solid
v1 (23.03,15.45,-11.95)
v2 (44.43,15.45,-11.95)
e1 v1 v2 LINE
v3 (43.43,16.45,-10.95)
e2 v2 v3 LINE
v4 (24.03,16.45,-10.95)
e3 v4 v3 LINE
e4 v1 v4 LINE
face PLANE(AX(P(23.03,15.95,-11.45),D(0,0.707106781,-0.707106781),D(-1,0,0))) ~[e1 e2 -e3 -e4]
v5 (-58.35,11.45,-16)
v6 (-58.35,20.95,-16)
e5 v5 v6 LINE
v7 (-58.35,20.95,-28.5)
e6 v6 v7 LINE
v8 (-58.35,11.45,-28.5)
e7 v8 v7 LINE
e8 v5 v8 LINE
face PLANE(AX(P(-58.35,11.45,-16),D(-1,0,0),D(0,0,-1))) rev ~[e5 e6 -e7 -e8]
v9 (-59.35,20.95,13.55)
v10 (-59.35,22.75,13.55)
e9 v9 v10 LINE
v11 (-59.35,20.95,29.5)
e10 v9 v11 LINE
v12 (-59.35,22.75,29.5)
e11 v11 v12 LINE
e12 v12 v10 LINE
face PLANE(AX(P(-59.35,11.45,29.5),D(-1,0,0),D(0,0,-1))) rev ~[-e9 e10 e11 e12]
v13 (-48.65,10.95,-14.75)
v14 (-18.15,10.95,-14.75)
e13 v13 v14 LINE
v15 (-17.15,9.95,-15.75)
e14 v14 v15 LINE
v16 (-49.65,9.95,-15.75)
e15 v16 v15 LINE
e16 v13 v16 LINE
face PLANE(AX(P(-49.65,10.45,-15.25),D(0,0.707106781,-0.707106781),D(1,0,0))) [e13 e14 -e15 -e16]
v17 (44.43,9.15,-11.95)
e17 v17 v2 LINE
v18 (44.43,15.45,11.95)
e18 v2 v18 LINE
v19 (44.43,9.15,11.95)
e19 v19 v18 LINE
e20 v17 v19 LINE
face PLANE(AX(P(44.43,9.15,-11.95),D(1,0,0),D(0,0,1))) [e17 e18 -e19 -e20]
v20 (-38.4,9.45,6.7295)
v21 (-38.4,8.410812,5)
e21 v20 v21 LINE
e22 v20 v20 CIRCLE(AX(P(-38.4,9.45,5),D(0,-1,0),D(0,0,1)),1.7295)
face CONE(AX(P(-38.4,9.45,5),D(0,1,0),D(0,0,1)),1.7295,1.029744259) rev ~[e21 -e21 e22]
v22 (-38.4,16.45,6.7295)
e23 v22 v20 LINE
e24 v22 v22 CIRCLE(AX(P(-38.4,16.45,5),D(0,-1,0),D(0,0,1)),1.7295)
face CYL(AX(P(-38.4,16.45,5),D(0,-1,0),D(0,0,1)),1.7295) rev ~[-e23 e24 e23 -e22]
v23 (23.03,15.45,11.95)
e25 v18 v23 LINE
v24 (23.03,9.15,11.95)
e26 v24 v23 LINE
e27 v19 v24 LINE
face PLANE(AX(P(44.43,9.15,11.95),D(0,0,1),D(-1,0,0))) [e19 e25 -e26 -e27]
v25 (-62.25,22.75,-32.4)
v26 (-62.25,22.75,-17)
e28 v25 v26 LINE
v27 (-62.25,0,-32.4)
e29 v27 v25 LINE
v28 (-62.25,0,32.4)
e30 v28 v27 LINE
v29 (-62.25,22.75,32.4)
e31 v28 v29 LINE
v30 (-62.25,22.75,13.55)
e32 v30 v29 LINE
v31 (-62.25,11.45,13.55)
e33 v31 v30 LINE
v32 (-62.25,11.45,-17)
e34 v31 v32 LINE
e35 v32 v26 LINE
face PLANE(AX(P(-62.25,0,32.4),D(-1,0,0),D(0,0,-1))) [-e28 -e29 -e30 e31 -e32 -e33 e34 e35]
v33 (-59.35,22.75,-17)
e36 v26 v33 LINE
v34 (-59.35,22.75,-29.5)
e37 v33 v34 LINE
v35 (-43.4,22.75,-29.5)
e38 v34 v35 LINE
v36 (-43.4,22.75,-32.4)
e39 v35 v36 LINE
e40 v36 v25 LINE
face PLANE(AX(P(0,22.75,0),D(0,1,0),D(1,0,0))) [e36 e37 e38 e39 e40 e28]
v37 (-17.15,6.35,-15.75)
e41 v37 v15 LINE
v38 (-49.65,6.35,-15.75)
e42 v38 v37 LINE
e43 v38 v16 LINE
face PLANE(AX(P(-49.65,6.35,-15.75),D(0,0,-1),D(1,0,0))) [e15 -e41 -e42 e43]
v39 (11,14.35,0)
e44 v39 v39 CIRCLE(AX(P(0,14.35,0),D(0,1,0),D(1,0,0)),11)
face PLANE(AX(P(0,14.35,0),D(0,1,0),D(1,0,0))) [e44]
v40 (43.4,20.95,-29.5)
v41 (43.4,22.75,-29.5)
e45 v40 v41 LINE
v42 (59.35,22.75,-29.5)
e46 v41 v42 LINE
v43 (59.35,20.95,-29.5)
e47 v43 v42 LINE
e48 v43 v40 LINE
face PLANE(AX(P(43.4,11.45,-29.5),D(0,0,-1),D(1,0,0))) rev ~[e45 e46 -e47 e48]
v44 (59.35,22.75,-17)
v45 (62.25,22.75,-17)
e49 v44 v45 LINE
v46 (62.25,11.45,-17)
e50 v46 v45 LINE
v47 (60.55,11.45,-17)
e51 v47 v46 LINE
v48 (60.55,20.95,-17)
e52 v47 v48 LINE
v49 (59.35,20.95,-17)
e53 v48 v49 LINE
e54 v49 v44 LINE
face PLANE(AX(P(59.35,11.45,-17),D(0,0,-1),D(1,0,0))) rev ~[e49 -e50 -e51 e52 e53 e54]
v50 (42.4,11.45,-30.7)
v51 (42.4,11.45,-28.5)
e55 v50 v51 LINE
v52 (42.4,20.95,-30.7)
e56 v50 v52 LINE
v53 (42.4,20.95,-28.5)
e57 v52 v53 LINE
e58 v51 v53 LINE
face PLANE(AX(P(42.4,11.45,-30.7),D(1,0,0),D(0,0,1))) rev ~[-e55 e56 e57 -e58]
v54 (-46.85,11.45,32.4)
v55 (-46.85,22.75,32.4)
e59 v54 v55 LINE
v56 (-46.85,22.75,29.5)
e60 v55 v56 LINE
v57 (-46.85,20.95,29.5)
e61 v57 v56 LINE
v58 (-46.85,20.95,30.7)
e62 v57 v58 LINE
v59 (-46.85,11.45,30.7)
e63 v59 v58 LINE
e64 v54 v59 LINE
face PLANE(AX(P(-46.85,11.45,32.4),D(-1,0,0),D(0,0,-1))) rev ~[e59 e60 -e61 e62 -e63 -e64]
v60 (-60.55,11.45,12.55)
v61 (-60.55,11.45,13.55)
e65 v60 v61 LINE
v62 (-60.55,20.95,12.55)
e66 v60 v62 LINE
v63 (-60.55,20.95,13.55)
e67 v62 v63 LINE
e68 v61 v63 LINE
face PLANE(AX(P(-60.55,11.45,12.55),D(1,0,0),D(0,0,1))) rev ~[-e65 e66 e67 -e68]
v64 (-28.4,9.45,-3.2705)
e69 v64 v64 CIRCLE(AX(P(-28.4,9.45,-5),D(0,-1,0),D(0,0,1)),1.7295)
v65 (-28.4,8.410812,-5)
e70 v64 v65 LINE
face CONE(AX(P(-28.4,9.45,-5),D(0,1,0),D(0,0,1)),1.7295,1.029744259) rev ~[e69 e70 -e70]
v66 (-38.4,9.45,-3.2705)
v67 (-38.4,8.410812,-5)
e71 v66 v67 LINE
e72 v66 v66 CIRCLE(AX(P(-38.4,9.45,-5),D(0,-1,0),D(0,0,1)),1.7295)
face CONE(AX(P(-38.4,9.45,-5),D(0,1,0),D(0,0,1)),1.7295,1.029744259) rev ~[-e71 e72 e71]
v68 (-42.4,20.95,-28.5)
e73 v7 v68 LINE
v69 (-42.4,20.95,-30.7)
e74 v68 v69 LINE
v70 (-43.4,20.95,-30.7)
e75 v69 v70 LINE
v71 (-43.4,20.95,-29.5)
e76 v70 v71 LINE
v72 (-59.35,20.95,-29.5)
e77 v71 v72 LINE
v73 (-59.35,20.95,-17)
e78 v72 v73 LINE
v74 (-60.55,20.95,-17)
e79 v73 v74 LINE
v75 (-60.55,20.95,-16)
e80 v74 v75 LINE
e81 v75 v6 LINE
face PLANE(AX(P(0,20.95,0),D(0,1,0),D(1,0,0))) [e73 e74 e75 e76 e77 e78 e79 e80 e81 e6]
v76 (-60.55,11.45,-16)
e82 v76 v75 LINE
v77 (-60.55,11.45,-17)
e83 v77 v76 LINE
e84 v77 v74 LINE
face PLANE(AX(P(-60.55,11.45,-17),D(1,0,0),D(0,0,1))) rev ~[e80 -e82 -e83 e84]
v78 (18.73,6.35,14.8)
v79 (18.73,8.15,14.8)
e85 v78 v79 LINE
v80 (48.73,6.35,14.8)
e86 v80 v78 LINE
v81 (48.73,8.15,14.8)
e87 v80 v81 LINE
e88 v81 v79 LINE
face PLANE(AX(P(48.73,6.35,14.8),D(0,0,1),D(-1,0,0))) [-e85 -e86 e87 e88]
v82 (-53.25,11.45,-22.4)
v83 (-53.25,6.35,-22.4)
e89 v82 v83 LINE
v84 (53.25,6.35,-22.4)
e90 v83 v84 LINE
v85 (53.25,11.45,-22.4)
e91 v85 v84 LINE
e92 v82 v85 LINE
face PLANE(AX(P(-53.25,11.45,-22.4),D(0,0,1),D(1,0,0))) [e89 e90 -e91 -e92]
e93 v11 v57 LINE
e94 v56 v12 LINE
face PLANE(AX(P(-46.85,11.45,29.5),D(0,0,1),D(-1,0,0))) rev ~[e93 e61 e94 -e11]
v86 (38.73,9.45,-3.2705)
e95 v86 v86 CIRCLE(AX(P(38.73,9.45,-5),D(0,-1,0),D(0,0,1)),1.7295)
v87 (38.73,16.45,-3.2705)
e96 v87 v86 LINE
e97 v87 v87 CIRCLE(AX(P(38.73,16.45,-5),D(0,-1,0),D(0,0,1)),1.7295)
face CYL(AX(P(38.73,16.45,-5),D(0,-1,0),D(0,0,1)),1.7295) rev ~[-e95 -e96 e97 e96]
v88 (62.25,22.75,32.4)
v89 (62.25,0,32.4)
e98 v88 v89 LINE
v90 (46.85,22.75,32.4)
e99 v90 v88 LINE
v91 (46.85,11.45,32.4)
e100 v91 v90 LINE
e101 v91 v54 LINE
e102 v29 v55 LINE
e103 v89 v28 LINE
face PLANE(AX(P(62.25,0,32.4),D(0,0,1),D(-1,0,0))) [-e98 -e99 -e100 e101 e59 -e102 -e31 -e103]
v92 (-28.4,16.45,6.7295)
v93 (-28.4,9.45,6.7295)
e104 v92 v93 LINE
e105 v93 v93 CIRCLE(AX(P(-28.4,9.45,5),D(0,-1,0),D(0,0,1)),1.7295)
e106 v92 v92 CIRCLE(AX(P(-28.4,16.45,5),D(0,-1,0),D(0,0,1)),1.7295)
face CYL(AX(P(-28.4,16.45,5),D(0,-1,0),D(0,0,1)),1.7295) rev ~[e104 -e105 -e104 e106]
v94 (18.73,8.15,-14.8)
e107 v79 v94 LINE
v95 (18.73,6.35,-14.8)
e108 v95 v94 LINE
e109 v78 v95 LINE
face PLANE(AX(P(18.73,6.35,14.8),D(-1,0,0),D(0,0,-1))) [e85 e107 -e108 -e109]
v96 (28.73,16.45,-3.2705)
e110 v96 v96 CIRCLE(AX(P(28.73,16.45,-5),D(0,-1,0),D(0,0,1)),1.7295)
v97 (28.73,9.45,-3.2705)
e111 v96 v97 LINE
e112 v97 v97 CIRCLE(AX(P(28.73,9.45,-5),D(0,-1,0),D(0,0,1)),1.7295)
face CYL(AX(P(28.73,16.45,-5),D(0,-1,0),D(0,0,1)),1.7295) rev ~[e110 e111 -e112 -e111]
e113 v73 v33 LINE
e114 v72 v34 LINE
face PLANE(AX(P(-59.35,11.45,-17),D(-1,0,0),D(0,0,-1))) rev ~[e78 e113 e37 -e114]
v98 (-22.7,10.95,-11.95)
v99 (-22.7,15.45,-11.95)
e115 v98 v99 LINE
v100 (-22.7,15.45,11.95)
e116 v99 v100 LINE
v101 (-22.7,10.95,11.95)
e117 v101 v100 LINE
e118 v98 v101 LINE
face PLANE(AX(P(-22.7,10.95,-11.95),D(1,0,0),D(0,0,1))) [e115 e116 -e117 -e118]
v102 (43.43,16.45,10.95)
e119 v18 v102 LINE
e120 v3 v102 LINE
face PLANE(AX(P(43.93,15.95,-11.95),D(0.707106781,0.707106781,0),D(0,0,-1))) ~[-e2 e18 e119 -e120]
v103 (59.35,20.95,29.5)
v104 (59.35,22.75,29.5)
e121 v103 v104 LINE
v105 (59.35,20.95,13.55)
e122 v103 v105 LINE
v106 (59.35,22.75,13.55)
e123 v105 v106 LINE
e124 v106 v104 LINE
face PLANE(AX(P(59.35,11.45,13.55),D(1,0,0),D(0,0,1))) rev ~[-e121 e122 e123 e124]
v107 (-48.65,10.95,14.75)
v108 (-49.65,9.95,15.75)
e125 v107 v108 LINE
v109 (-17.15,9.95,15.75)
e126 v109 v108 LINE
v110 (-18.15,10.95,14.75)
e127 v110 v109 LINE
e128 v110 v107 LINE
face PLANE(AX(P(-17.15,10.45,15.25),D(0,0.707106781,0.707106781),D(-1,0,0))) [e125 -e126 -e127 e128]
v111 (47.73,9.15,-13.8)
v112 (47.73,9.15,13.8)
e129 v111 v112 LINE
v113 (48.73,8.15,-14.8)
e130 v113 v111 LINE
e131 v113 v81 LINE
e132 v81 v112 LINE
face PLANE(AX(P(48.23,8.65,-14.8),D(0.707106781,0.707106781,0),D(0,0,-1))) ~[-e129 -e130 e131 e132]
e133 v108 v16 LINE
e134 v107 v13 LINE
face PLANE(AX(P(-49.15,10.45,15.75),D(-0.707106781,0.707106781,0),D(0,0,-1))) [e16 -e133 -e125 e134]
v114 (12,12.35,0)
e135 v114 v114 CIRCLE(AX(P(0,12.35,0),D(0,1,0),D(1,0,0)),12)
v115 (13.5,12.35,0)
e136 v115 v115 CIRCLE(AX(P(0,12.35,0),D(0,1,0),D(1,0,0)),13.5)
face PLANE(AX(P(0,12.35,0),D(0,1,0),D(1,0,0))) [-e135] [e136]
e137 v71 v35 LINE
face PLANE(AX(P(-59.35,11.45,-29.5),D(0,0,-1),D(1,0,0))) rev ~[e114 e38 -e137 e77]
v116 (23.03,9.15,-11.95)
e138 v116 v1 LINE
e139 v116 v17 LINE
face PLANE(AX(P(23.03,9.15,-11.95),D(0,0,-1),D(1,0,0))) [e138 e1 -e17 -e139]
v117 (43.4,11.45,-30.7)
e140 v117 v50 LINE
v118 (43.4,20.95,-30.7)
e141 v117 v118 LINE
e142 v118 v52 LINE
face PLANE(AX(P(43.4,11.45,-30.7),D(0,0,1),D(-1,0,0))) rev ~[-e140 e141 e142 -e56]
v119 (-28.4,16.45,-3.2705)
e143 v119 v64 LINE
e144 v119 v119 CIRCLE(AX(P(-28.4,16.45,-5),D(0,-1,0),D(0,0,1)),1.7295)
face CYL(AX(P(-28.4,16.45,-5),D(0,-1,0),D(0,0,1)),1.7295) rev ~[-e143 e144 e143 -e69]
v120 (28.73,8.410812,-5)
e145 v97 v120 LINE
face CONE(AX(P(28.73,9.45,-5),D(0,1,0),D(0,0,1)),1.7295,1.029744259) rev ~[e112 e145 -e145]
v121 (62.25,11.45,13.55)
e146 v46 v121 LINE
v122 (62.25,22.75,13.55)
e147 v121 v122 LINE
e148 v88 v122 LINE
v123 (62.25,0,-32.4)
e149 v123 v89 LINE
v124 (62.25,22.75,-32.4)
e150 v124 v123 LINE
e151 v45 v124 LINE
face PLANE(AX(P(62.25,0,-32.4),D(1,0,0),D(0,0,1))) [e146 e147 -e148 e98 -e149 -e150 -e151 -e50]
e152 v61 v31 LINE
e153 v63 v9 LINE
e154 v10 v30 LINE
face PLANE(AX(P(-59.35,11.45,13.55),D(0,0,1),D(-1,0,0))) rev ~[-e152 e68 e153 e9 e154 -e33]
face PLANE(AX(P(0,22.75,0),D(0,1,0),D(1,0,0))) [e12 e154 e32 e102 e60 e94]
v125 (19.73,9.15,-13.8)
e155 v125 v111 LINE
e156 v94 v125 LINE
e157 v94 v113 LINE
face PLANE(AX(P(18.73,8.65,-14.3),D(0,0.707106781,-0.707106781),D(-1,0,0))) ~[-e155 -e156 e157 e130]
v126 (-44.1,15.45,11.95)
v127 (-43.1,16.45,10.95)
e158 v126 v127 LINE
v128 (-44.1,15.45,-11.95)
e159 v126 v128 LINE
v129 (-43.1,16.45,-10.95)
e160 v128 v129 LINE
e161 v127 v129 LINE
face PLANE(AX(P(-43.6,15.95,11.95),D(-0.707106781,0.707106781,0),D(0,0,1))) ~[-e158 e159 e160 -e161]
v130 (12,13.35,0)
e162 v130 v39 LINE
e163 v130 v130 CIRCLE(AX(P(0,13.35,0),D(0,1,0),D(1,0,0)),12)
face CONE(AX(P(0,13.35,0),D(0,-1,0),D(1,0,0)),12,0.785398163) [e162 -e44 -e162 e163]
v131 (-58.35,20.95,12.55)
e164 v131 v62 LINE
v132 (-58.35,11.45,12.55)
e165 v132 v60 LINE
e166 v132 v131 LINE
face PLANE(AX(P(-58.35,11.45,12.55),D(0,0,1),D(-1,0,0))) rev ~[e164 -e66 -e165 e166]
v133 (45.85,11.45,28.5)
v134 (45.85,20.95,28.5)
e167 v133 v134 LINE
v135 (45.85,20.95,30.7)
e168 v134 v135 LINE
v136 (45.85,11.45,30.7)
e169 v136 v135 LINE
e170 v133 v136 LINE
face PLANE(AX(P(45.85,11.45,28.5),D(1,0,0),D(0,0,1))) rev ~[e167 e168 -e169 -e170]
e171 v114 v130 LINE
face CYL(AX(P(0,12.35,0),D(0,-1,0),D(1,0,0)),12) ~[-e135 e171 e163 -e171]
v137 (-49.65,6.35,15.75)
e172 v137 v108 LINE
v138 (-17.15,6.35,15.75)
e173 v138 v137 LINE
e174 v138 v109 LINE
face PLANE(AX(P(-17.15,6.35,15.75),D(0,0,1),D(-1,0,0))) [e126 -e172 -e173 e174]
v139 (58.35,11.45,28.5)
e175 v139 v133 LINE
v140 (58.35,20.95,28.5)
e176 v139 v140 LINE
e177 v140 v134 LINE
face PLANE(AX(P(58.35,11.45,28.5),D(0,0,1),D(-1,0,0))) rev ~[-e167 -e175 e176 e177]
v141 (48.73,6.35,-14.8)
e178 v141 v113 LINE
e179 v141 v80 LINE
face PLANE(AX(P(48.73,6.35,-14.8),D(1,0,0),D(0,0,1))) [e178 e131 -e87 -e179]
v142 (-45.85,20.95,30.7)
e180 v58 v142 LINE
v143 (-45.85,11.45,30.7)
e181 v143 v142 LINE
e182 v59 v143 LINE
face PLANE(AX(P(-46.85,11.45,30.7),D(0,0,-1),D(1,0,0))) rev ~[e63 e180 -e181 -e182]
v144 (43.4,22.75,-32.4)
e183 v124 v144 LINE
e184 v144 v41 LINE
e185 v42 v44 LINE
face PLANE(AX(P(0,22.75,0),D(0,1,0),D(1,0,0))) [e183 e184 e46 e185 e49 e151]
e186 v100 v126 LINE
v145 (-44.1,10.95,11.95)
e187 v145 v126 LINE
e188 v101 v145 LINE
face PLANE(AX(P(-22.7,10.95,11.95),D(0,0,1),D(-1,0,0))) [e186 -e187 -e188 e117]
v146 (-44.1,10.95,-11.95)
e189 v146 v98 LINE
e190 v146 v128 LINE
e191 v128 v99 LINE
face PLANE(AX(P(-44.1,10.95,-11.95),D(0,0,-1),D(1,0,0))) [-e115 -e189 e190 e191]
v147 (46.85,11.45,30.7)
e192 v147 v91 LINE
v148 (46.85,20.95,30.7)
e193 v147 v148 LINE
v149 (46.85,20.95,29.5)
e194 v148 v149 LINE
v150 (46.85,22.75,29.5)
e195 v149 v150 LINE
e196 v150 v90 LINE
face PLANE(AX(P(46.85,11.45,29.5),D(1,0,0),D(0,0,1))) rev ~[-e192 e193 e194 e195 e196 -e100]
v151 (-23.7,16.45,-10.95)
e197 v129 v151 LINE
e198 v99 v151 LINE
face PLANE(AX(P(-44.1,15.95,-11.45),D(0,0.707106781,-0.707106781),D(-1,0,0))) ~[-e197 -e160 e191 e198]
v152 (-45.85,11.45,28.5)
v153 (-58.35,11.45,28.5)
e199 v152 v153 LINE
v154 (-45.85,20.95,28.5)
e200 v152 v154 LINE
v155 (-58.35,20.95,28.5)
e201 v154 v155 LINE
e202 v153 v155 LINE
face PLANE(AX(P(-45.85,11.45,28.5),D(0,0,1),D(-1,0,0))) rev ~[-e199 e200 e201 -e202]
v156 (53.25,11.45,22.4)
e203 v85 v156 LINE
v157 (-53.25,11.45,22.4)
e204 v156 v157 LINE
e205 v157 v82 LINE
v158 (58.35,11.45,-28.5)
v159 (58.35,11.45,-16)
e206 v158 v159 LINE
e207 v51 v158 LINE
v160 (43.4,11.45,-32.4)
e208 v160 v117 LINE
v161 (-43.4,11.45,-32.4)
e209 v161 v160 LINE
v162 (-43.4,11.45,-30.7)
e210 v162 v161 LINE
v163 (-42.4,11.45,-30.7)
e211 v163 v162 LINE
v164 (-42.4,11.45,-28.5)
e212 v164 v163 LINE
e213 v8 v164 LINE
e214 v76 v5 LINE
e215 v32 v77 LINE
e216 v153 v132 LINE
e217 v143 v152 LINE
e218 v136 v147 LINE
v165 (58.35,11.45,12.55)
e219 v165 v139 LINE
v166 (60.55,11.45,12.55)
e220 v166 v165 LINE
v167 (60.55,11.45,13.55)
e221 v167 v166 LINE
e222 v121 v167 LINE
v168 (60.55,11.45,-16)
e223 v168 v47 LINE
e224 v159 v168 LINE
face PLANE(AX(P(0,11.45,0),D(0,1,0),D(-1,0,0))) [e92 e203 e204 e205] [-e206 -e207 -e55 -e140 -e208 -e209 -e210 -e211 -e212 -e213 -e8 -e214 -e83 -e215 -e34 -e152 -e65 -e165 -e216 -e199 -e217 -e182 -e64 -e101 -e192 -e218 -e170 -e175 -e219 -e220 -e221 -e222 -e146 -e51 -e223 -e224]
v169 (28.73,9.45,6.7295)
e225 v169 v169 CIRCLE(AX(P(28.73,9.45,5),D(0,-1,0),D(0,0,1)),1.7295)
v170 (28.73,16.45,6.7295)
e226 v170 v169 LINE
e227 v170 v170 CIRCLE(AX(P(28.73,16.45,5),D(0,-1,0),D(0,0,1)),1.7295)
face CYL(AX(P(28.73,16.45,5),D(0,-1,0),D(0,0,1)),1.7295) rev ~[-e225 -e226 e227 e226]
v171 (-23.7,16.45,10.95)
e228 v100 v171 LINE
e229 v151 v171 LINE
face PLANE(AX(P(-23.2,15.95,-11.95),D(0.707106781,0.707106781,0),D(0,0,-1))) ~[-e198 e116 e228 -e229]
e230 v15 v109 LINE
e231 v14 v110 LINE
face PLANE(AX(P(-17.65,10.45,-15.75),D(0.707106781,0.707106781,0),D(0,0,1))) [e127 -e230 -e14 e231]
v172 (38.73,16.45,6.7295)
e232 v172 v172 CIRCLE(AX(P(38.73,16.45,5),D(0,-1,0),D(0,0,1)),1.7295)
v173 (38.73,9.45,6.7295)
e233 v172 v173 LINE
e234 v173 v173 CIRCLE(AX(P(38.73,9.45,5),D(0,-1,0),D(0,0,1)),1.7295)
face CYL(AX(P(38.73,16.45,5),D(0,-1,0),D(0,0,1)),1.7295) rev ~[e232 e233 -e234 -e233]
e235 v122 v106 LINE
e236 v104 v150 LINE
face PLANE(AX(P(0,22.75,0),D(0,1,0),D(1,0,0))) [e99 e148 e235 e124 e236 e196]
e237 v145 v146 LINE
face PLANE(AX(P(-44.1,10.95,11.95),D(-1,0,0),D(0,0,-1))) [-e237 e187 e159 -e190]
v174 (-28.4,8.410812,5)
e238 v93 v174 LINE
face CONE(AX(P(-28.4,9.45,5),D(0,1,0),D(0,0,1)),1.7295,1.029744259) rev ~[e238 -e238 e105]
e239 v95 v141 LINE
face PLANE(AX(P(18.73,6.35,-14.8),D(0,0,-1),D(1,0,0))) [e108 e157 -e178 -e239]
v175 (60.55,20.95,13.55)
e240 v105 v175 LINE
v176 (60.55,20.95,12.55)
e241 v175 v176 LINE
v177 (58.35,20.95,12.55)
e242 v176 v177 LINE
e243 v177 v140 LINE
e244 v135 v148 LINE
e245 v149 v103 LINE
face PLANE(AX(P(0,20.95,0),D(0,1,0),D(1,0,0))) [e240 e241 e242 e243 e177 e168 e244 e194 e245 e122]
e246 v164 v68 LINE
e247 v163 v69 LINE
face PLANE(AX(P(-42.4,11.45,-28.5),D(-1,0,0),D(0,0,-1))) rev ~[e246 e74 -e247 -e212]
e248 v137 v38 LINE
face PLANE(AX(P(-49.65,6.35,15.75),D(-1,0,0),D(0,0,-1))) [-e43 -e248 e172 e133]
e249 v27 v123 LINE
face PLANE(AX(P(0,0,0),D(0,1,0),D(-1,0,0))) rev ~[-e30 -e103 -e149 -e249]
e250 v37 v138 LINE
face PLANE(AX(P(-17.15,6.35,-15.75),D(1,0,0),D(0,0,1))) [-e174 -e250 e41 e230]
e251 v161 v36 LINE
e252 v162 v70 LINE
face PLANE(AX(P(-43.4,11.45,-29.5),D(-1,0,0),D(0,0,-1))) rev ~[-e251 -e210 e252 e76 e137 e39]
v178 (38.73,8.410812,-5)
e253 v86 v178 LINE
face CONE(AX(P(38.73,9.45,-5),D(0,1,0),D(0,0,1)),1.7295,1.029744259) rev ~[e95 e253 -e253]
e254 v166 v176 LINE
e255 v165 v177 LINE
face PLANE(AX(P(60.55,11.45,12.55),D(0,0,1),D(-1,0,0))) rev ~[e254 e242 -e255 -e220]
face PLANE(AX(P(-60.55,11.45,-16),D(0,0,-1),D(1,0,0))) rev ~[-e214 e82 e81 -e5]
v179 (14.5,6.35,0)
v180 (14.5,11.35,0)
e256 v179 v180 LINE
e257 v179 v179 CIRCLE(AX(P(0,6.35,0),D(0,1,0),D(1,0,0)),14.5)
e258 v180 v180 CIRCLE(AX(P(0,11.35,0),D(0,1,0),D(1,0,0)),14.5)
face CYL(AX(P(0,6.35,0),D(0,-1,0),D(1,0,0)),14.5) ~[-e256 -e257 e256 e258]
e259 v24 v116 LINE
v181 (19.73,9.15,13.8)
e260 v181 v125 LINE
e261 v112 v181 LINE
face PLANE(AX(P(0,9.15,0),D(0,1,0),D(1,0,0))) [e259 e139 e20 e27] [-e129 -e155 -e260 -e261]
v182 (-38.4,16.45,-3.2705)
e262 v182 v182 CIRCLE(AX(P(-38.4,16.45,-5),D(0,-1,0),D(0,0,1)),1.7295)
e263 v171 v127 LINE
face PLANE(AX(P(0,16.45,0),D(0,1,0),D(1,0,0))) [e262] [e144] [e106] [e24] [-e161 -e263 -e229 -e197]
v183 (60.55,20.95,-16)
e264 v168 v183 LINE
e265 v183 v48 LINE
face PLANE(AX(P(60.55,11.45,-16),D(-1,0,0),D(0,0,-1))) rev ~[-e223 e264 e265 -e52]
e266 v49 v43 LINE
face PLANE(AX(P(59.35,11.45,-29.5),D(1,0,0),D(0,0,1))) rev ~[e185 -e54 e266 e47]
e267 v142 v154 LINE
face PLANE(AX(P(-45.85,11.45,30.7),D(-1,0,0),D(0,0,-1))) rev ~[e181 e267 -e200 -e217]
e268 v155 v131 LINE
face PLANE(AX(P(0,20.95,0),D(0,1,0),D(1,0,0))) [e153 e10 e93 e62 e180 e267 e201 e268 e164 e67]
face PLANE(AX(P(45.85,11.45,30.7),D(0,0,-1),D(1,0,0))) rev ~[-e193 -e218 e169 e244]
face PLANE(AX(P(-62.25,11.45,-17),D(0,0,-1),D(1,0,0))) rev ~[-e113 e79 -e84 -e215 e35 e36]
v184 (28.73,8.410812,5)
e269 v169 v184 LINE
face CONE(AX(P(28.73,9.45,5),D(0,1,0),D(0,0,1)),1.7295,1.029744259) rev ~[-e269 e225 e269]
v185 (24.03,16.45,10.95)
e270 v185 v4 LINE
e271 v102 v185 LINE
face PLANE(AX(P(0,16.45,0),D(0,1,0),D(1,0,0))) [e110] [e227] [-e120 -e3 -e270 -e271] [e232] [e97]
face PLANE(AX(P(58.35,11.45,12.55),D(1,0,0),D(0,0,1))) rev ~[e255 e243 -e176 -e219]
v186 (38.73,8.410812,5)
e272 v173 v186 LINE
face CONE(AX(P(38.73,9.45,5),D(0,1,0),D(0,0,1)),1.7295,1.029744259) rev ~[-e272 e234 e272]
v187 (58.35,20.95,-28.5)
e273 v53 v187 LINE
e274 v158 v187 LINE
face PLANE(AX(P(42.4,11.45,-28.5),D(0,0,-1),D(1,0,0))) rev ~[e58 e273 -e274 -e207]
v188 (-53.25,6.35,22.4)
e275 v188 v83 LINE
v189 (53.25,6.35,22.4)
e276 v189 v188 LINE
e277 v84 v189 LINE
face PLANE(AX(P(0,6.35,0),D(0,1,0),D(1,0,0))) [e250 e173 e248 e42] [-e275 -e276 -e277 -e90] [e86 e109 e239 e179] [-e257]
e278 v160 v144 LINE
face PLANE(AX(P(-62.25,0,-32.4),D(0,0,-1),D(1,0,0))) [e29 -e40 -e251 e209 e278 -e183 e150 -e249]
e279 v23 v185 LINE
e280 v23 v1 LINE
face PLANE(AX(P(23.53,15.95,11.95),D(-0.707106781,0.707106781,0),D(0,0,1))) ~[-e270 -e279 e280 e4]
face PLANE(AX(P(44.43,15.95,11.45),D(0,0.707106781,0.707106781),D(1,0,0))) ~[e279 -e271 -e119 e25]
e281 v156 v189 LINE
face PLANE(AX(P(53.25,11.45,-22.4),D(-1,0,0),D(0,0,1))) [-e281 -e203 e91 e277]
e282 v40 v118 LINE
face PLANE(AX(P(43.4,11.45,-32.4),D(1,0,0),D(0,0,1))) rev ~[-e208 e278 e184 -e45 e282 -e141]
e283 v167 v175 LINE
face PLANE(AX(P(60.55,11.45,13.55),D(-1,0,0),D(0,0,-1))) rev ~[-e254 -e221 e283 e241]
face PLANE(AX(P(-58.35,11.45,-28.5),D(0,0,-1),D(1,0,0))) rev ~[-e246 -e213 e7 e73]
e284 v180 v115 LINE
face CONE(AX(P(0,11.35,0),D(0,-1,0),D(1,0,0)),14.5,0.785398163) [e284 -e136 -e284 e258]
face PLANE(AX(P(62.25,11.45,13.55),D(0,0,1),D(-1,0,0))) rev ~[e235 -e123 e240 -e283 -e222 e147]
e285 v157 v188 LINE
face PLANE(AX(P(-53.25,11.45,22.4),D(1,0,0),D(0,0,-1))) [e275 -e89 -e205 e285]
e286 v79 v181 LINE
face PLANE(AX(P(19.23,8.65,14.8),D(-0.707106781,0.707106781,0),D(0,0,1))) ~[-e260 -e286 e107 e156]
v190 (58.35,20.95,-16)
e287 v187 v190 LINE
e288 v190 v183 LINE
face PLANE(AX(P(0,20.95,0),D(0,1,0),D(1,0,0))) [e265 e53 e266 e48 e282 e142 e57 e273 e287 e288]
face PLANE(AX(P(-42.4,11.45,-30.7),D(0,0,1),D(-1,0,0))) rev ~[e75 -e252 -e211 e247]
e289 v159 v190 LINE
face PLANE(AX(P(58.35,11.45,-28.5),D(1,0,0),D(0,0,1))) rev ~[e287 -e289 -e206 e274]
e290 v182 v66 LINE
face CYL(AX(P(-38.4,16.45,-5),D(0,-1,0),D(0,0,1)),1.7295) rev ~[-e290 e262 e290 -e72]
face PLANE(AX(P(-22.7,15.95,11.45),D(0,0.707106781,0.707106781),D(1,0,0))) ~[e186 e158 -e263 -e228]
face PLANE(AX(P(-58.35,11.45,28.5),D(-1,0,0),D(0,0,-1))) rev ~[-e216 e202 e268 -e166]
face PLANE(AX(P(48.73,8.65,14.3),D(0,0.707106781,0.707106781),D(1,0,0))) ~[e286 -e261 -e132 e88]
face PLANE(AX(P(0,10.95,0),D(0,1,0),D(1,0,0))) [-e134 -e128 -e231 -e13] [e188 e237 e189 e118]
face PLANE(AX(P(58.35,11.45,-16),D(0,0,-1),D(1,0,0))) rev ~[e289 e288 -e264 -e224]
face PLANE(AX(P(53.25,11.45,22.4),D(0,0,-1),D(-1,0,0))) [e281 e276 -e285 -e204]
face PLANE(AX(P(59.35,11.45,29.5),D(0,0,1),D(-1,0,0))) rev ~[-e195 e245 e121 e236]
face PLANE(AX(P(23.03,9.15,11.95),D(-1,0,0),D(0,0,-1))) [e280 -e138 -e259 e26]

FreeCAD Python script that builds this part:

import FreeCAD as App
import Part
import Sketcher
from FreeCAD import Vector


def edges_at(feature, points):
    """Names of the edges that pass closest to the given points."""
    edges = feature.Shape.Edges
    near = lambda p: min(range(len(edges)), key=lambda i: edges[i].distToShape(Part.Vertex(*p))[0])
    return sorted({f"Edge{near(p) + 1}" for p in points})


def add_polygon(sketch, points):
    """Adds a closed chain of lines whose ends are joined by coincident constraints."""
    first, n = sketch.GeometryCount, len(points)
    for a, b in zip(points, points[1:] + points[:1]):
        sketch.addGeometry(Part.LineSegment(App.Vector(*a, 0), App.Vector(*b, 0)), False)
    for i in range(n):
        sketch.addConstraint(Sketcher.Constraint("Coincident", first + i, 2, first + (i + 1) % n, 1))

doc = App.newDocument("Part")
params = doc.addObject("Spreadsheet::Sheet", "Params")
for row, (alias, value) in enumerate([
    ("sketch1_width", "124.5 mm"),
    ("sketch1_height", "64.8 mm"),
    ("pad1_length", "11.45 mm"),
    ("sketch2_width", "2.9 mm"),
    ("sketch2_width2", "15.4 mm"),
    ("sketch2_width3", "18.85 mm"),
    ("pad2_length", "11.3 mm"),
    ("sketch3_width", "106.5 mm"),
    ("sketch3_height", "44.8 mm"),
    ("pocket1_length", "5.1 mm"),
    ("sketch4_width", "32.5 mm"),
    ("sketch4_height", "31.5 mm"),
    ("pad3_length", "4.6 mm"),
    ("sketch5_width", "21.4 mm"),
    ("sketch5_height", "23.9 mm"),
    ("pad4_length", "5.5 mm"),
    ("sketch6_width", "30 mm"),
    ("sketch6_height", "29.6 mm"),
    ("pad5_length", "2.8 mm"),
    ("sketch7_width", "21.4 mm"),
    ("sketch7_height", "23.9 mm"),
    ("pad6_length", "7.3 mm"),
    ("sketch8_width", "1 mm"),
    ("sketch8_width2", "2.2 mm"),
    ("sketch8_width3", "12.5 mm"),
    ("sketch8_width4", "15.95 mm"),
    ("pad7_length", "9.5 mm"),
    ("sketch9_diameter", "29 mm"),
    ("pad8_length", "6 mm"),
    ("sketch10_diameter", "24 mm"),
    ("pad9_length", "2 mm"),
    ("chamfer_size", "1 mm"),
    ("chamfer2_size", "1 mm"),
    ("chamfer3_size", "1 mm"),
    ("chamfer4_size", "1 mm"),
    ("hole_diameter", "3.459 mm"),
    ("hole_depth", "7 mm"),
    ("hole2_diameter", "3.459 mm"),
    ("hole2_depth", "7 mm"),
    ("chamfer5_size", "1 mm"),
], start=1):
    params.set(f"A{row}", alias)
    params.set(f"B{row}", "=" + value)
    params.setAlias(f"B{row}", alias)

body = doc.addObject("PartDesign::Body", "Body")

sketch1 = body.newObject("Sketcher::SketchObject", "Sketch")
sketch1.AttachmentSupport = (doc.getObject("XZ_Plane"), [""])
sketch1.MapMode = "FlatFace"
add_polygon(sketch1, [(62, -32), (-62, -32), (-62, 32), (62, 32)])
sketch1.addConstraint(Sketcher.Constraint("Horizontal", 0))
sketch1.addConstraint(Sketcher.Constraint("Vertical", 1))
sketch1.addConstraint(Sketcher.Constraint("Horizontal", 2))
sketch1.addConstraint(Sketcher.Constraint("Vertical", 3))
sketch1.addConstraint(Sketcher.Constraint("Symmetric", 0, 2, 2, 2, -1, 1))
sketch1.addConstraint(Sketcher.Constraint("DistanceX", 0, 2, 0, 1, 124.5))
sketch1.addConstraint(Sketcher.Constraint("DistanceY", 1, 1, 1, 2, 64.8))
sketch1.setExpression("Constraints[9]", "Params.sketch1_width")
sketch1.setExpression("Constraints[10]", "Params.sketch1_height")
pad1 = body.newObject("PartDesign::Pad", "Pad")
pad1.Profile = sketch1
pad1.setExpression("Length", "Params.pad1_length")
pad1.Reversed = True

sketch2 = body.newObject("Sketcher::SketchObject", "Sketch001")
sketch2.AttachmentSupport = (doc.getObject("XZ_Plane"), [""])
sketch2.MapMode = "FlatFace"
sketch2.AttachmentOffset = App.Placement(Vector(0, 0, -11.45), App.Rotation())
add_polygon(sketch2, [(62.2, -17), (62.2, -32.4), (43.4, -32.4), (43.4, -29.5), (59.4, -29.5), (59.4, -17)])
add_polygon(sketch2, [(-43.4, -29.5), (-43.4, -32.4), (-62.2, -32.4), (-62.2, -17), (-59.4, -17), (-59.4, -29.5)])
add_polygon(sketch2, [(62.2, 32.4), (62.2, 13.6), (59.4, 13.6), (59.4, 29.5), (46.9, 29.5), (46.9, 32.4)])
add_polygon(sketch2, [(-59.4, 13.6), (-62.2, 13.6), (-62.2, 32.4), (-46.9, 32.4), (-46.9, 29.5), (-59.4, 29.5)])
sketch2.addConstraint(Sketcher.Constraint("Vertical", 0))
sketch2.addConstraint(Sketcher.Constraint("Horizontal", 1))
sketch2.addConstraint(Sketcher.Constraint("Vertical", 2))
sketch2.addConstraint(Sketcher.Constraint("Horizontal", 3))
sketch2.addConstraint(Sketcher.Constraint("Vertical", 4))
sketch2.addConstraint(Sketcher.Constraint("Horizontal", 5))
sketch2.addConstraint(Sketcher.Constraint("Vertical", 6))
sketch2.addConstraint(Sketcher.Constraint("Horizontal", 7))
sketch2.addConstraint(Sketcher.Constraint("Vertical", 8))
sketch2.addConstraint(Sketcher.Constraint("Horizontal", 9))
sketch2.addConstraint(Sketcher.Constraint("Vertical", 10))
sketch2.addConstraint(Sketcher.Constraint("Horizontal", 11))
sketch2.addConstraint(Sketcher.Constraint("Vertical", 12))
sketch2.addConstraint(Sketcher.Constraint("Horizontal", 13))
sketch2.addConstraint(Sketcher.Constraint("Vertical", 14))
sketch2.addConstraint(Sketcher.Constraint("Horizontal", 15))
sketch2.addConstraint(Sketcher.Constraint("Vertical", 16))
sketch2.addConstraint(Sketcher.Constraint("Horizontal", 17))
sketch2.addConstraint(Sketcher.Constraint("Horizontal", 18))
sketch2.addConstraint(Sketcher.Constraint("Vertical", 19))
sketch2.addConstraint(Sketcher.Constraint("Horizontal", 20))
sketch2.addConstraint(Sketcher.Constraint("Vertical", 21))
sketch2.addConstraint(Sketcher.Constraint("Horizontal", 22))
sketch2.addConstraint(Sketcher.Constraint("Vertical", 23))
sketch2.addConstraint(Sketcher.Constraint("Symmetric", 10, 2, 14, 2, -1, 1))
sketch2.addConstraint(Sketcher.Constraint("Symmetric", 7, 2, 17, 2, -1, 1))
sketch2.addConstraint(Sketcher.Constraint("Symmetric", 0, 2, 19, 2, -1, 1))
sketch2.addConstraint(Sketcher.Constraint("Symmetric", 3, 2, 22, 2, -1, 1))
sketch2.addConstraint(Sketcher.Constraint("Symmetric", 1, 2, 6, 2, -2))
sketch2.addConstraint(Sketcher.Constraint("Symmetric", 5, 2, 8, 2, -2))
sketch2.addConstraint(Sketcher.Constraint("Symmetric", 3, 2, 10, 2, -2))
sketch2.addConstraint(Sketcher.Constraint("Horizontal", 13, 2, 18, 2))
sketch2.addConstraint(Sketcher.Constraint("Equal", 17, 20))
sketch2.addConstraint(Sketcher.Constraint("Equal", 20, 0))
sketch2.addConstraint(Sketcher.Constraint("Equal", 18, 2))
sketch2.addConstraint(Sketcher.Constraint("Equal", 7, 12))
sketch2.addConstraint(Sketcher.Constraint("DistanceX", 5, 1, 5, 2, 2.9))
sketch2.addConstraint(Sketcher.Constraint("DistanceX", 17, 1, 17, 2, 15.4))
sketch2.addConstraint(Sketcher.Constraint("DistanceX", 1, 2, 1, 1, 18.85))
sketch2.addConstraint(Sketcher.Constraint("DistanceY", 4, 2, -1, 1, 17.0))
sketch2.addConstraint(Sketcher.Constraint("DistanceX", -1, 1, 1, 2, 43.4))
sketch2.setExpression("Constraints[60]", "Params.sketch2_width")
sketch2.setExpression("Constraints[61]", "Params.sketch2_width2")
sketch2.setExpression("Constraints[62]", "Params.sketch2_width3")
pad2 = body.newObject("PartDesign::Pad", "Pad001")
pad2.Profile = sketch2
pad2.setExpression("Length", "Params.pad2_length")
pad2.Reversed = True

sketch3 = body.newObject("Sketcher::SketchObject", "Sketch002")
sketch3.AttachmentSupport = (doc.getObject("XZ_Plane"), [""])
sketch3.MapMode = "FlatFace"
sketch3.AttachmentOffset = App.Placement(Vector(0, 0, -11.45), App.Rotation())
add_polygon(sketch3, [(53, -22), (-53, -22), (-53, 22), (53, 22)])
sketch3.addConstraint(Sketcher.Constraint("Horizontal", 0))
sketch3.addConstraint(Sketcher.Constraint("Vertical", 1))
sketch3.addConstraint(Sketcher.Constraint("Horizontal", 2))
sketch3.addConstraint(Sketcher.Constraint("Vertical", 3))
sketch3.addConstraint(Sketcher.Constraint("Symmetric", 0, 2, 2, 2, -1, 1))
sketch3.addConstraint(Sketcher.Constraint("DistanceX", 0, 2, 0, 1, 106.5))
sketch3.addConstraint(Sketcher.Constraint("DistanceY", 1, 1, 1, 2, 44.8))
sketch3.setExpression("Constraints[9]", "Params.sketch3_width")
sketch3.setExpression("Constraints[10]", "Params.sketch3_height")
pocket1 = body.newObject("PartDesign::Pocket", "Pocket")
pocket1.Profile = sketch3
pocket1.setExpression("Length", "Params.pocket1_length")
pocket1.Reversed = True

sketch4 = body.newObject("Sketcher::SketchObject", "Sketch003")
sketch4.AttachmentSupport = (doc.getObject("XZ_Plane"), [""])
sketch4.MapMode = "FlatFace"
sketch4.AttachmentOffset = App.Placement(Vector(0, 0, -6.35), App.Rotation())
add_polygon(sketch4, [(-17, -16), (-50, -16), (-50, 16), (-17, 16)])
sketch4.addConstraint(Sketcher.Constraint("Horizontal", 0))
sketch4.addConstraint(Sketcher.Constraint("Vertical", 1))
sketch4.addConstraint(Sketcher.Constraint("Horizontal", 2))
sketch4.addConstraint(Sketcher.Constraint("Vertical", 3))
sketch4.addConstraint(Sketcher.Constraint("DistanceX", 0, 2, 0, 1, 32.5))
sketch4.addConstraint(Sketcher.Constraint("DistanceY", 1, 1, 1, 2, 31.5))
sketch4.addConstraint(Sketcher.Constraint("DistanceX", 0, 2, -1, 1, 49.65))
sketch4.addConstraint(Sketcher.Constraint("DistanceY", 0, 2, -1, 1, 15.75))
sketch4.setExpression("Constraints[8]", "Params.sketch4_width")
sketch4.setExpression("Constraints[9]", "Params.sketch4_height")
pad3 = body.newObject("PartDesign::Pad", "Pad002")
pad3.Profile = sketch4
pad3.setExpression("Length", "Params.pad3_length")
pad3.Reversed = True

sketch5 = body.newObject("Sketcher::SketchObject", "Sketch004")
sketch5.AttachmentSupport = (doc.getObject("XZ_Plane"), [""])
sketch5.MapMode = "FlatFace"
sketch5.AttachmentOffset = App.Placement(Vector(0, 0, -10.95), App.Rotation())
add_polygon(sketch5, [(-23, -12), (-44, -12), (-44, 12), (-23, 12)])
sketch5.addConstraint(Sketcher.Constraint("Horizontal", 0))
sketch5.addConstraint(Sketcher.Constraint("Vertical", 1))
sketch5.addConstraint(Sketcher.Constraint("Horizontal", 2))
sketch5.addConstraint(Sketcher.Constraint("Vertical", 3))
sketch5.addConstraint(Sketcher.Constraint("DistanceX", 0, 2, 0, 1, 21.4))
sketch5.addConstraint(Sketcher.Constraint("DistanceY", 1, 1, 1, 2, 23.9))
sketch5.addConstraint(Sketcher.Constraint("DistanceX", 0, 2, -1, 1, 44.1))
sketch5.addConstraint(Sketcher.Constraint("DistanceY", 0, 2, -1, 1, 11.95))
sketch5.setExpression("Constraints[8]", "Params.sketch5_width")
sketch5.setExpression("Constraints[9]", "Params.sketch5_height")
pad4 = body.newObject("PartDesign::Pad", "Pad003")
pad4.Profile = sketch5
pad4.setExpression("Length", "Params.pad4_length")
pad4.Reversed = True

sketch6 = body.newObject("Sketcher::SketchObject", "Sketch005")
sketch6.AttachmentSupport = (doc.getObject("XZ_Plane"), [""])
sketch6.MapMode = "FlatFace"
sketch6.AttachmentOffset = App.Placement(Vector(0, 0, -6.35), App.Rotation())
add_polygon(sketch6, [(49, -15), (19, -15), (19, 15), (49, 15)])
sketch6.addConstraint(Sketcher.Constraint("Horizontal", 0))
sketch6.addConstraint(Sketcher.Constraint("Vertical", 1))
sketch6.addConstraint(Sketcher.Constraint("Horizontal", 2))
sketch6.addConstraint(Sketcher.Constraint("Vertical", 3))
sketch6.addConstraint(Sketcher.Constraint("DistanceX", 0, 2, 0, 1, 30.0))
sketch6.addConstraint(Sketcher.Constraint("DistanceY", 1, 1, 1, 2, 29.6))
sketch6.addConstraint(Sketcher.Constraint("DistanceY", 0, 2, -1, 1, 14.8))
sketch6.addConstraint(Sketcher.Constraint("DistanceX", -1, 1, 0, 2, 18.73))
sketch6.setExpression("Constraints[8]", "Params.sketch6_width")
sketch6.setExpression("Constraints[9]", "Params.sketch6_height")
pad5 = body.newObject("PartDesign::Pad", "Pad004")
pad5.Profile = sketch6
pad5.setExpression("Length", "Params.pad5_length")
pad5.Reversed = True

sketch7 = body.newObject("Sketcher::SketchObject", "Sketch006")
sketch7.AttachmentSupport = (doc.getObject("XZ_Plane"), [""])
sketch7.MapMode = "FlatFace"
sketch7.AttachmentOffset = App.Placement(Vector(0, 0, -9.15), App.Rotation())
add_polygon(sketch7, [(44, -12), (23, -12), (23, 12), (44, 12)])
sketch7.addConstraint(Sketcher.Constraint("Horizontal", 0))
sketch7.addConstraint(Sketcher.Constraint("Vertical", 1))
sketch7.addConstraint(Sketcher.Constraint("Horizontal", 2))
sketch7.addConstraint(Sketcher.Constraint("Vertical", 3))
sketch7.addConstraint(Sketcher.Constraint("DistanceX", 0, 2, 0, 1, 21.4))
sketch7.addConstraint(Sketcher.Constraint("DistanceY", 1, 1, 1, 2, 23.9))
sketch7.addConstraint(Sketcher.Constraint("DistanceX", -1, 1, 0, 2, 23.03))
sketch7.addConstraint(Sketcher.Constraint("DistanceY", 0, 2, -1, 1, 11.95))
sketch7.setExpression("Constraints[8]", "Params.sketch7_width")
sketch7.setExpression("Constraints[9]", "Params.sketch7_height")
pad6 = body.newObject("PartDesign::Pad", "Pad005")
pad6.Profile = sketch7
pad6.setExpression("Length", "Params.pad6_length")
pad6.Reversed = True

sketch8 = body.newObject("Sketcher::SketchObject", "Sketch007")
sketch8.AttachmentSupport = (doc.getObject("XZ_Plane"), [""])
sketch8.MapMode = "FlatFace"
sketch8.AttachmentOffset = App.Placement(Vector(0, 0, -11.45), App.Rotation())
add_polygon(sketch8, [(60.5, -16), (60.5, -17), (59.4, -17), (59.4, -29.5), (43.4, -29.5), (43.4, -30.7), (42.4, -30.7), (42.4, -28.5), (58.4, -28.5), (58.4, -16)])
add_polygon(sketch8, [(59.4, 13.6), (60.5, 13.6), (60.5, 12.6), (58.4, 12.6), (58.4, 28.5), (45.9, 28.5), (45.9, 30.7), (46.9, 30.7), (46.9, 29.5), (59.4, 29.5)])
add_polygon(sketch8, [(-58.4, 12.6), (-60.5, 12.6), (-60.5, 13.6), (-59.4, 13.6), (-59.4, 29.5), (-46.9, 29.5), (-46.9, 30.7), (-45.9, 30.7), (-45.9, 28.5), (-58.4, 28.5)])
add_polygon(sketch8, [(-60.5, -17), (-60.5, -16), (-58.4, -16), (-58.4, -28.5), (-42.4, -28.5), (-42.4, -30.7), (-43.4, -30.7), (-43.4, -29.5), (-59.4, -29.5), (-59.4, -17)])
sketch8.addConstraint(Sketcher.Constraint("Vertical", 0))
sketch8.addConstraint(Sketcher.Constraint("Horizontal", 1))
sketch8.addConstraint(Sketcher.Constraint("Vertical", 2))
sketch8.addConstraint(Sketcher.Constraint("Horizontal", 3))
sketch8.addConstraint(Sketcher.Constraint("Vertical", 4))
sketch8.addConstraint(Sketcher.Constraint("Horizontal", 5))
sketch8.addConstraint(Sketcher.Constraint("Vertical", 6))
sketch8.addConstraint(Sketcher.Constraint("Horizontal", 7))
sketch8.addConstraint(Sketcher.Constraint("Vertical", 8))
sketch8.addConstraint(Sketcher.Constraint("Horizontal", 9))
sketch8.addConstraint(Sketcher.Constraint("Horizontal", 10))
sketch8.addConstraint(Sketcher.Constraint("Vertical", 11))
sketch8.addConstraint(Sketcher.Constraint("Horizontal", 12))
sketch8.addConstraint(Sketcher.Constraint("Vertical", 13))
sketch8.addConstraint(Sketcher.Constraint("Horizontal", 14))
sketch8.addConstraint(Sketcher.Constraint("Vertical", 15))
sketch8.addConstraint(Sketcher.Constraint("Horizontal", 16))
sketch8.addConstraint(Sketcher.Constraint("Vertical", 17))
sketch8.addConstraint(Sketcher.Constraint("Horizontal", 18))
sketch8.addConstraint(Sketcher.Constraint("Vertical", 19))
sketch8.addConstraint(Sketcher.Constraint("Horizontal", 20))
sketch8.addConstraint(Sketcher.Constraint("Vertical", 21))
sketch8.addConstraint(Sketcher.Constraint("Horizontal", 22))
sketch8.addConstraint(Sketcher.Constraint("Vertical", 23))
sketch8.addConstraint(Sketcher.Constraint("Horizontal", 24))
sketch8.addConstraint(Sketcher.Constraint("Vertical", 25))
sketch8.addConstraint(Sketcher.Constraint("Horizontal", 26))
sketch8.addConstraint(Sketcher.Constraint("Vertical", 27))
sketch8.addConstraint(Sketcher.Constraint("Horizontal", 28))
sketch8.addConstraint(Sketcher.Constraint("Vertical", 29))
sketch8.addConstraint(Sketcher.Constraint("Vertical", 30))
sketch8.addConstraint(Sketcher.Constraint("Horizontal", 31))
sketch8.addConstraint(Sketcher.Constraint("Vertical", 32))
sketch8.addConstraint(Sketcher.Constraint("Horizontal", 33))
sketch8.addConstraint(Sketcher.Constraint("Vertical", 34))
sketch8.addConstraint(Sketcher.Constraint("Horizontal", 35))
sketch8.addConstraint(Sketcher.Constraint("Vertical", 36))
sketch8.addConstraint(Sketcher.Constraint("Horizontal", 37))
sketch8.addConstraint(Sketcher.Constraint("Vertical", 38))
sketch8.addConstraint(Sketcher.Constraint("Horizontal", 39))
sketch8.addConstraint(Sketcher.Constraint("Symmetric", 2, 2, 23, 2, -1, 1))
sketch8.addConstraint(Sketcher.Constraint("Symmetric", 7, 2, 28, 2, -1, 1))
sketch8.addConstraint(Sketcher.Constraint("Symmetric", 13, 2, 32, 2, -1, 1))
sketch8.addConstraint(Sketcher.Constraint("Symmetric", 18, 2, 37, 2, -1, 1))
sketch8.addConstraint(Sketcher.Constraint("Symmetric", 11, 2, 20, 2, -2))
sketch8.addConstraint(Sketcher.Constraint("Symmetric", 19, 2, 22, 2, -2))
sketch8.addConstraint(Sketcher.Constraint("Symmetric", 17, 2, 24, 2, -2))
sketch8.addConstraint(Sketcher.Constraint("Symmetric", 15, 2, 26, 2, -2))
sketch8.addConstraint(Sketcher.Constraint("Symmetric", 13, 2, 28, 2, -2))
sketch8.addConstraint(Sketcher.Constraint("Symmetric", 9, 2, 30, 2, -2))
sketch8.addConstraint(Sketcher.Constraint("Symmetric", 5, 2, 34, 2, -2))
sketch8.addConstraint(Sketcher.Constraint("Horizontal", 1, 2, 38, 2))
sketch8.addConstraint(Sketcher.Constraint("Vertical", 9, 2, 10, 2))
sketch8.addConstraint(Sketcher.Constraint("Equal", 3, 7))
sketch8.addConstraint(Sketcher.Constraint("Equal", 5, 16))
sketch8.addConstraint(Sketcher.Constraint("Equal", 26, 35))
sketch8.addConstraint(Sketcher.Constraint("Equal", 35, 0))
sketch8.addConstraint(Sketcher.Constraint("Equal", 28, 2))
sketch8.addConstraint(Sketcher.Constraint("Equal", 39, 4))
sketch8.addConstraint(Sketcher.Constraint("Equal", 31, 6))
sketch8.addConstraint(Sketcher.Constraint("Equal", 0, 11))
sketch8.addConstraint(Sketcher.Constraint("Equal", 37, 13))
sketch8.addConstraint(Sketcher.Constraint("Equal", 6, 15))
sketch8.addConstraint(Sketcher.Constraint("DistanceX", 5, 2, 5, 1, 1.0))
sketch8.addConstraint(Sketcher.Constraint("DistanceX", 9, 1, 9, 2, 2.2))
sketch8.addConstraint(Sketcher.Constraint("DistanceX", 14, 2, 14, 1, 12.5))
sketch8.addConstraint(Sketcher.Constraint("DistanceY", 0, 2, -1, 1, 17.0))
sketch8.addConstraint(Sketcher.Constraint("DistanceX", 3, 2, 3, 1, 15.95))
sketch8.addConstraint(Sketcher.Constraint("DistanceX", -1, 1, 3, 2, 43.4))
sketch8.setExpression("Constraints[103]", "Params.sketch8_width")
sketch8.setExpression("Constraints[104]", "Params.sketch8_width2")
sketch8.setExpression("Constraints[105]", "Params.sketch8_width3")
sketch8.setExpression("Constraints[107]", "Params.sketch8_width4")
pad7 = body.newObject("PartDesign::Pad", "Pad006")
pad7.Profile = sketch8
pad7.setExpression("Length", "Params.pad7_length")
pad7.Reversed = True

sketch9 = body.newObject("Sketcher::SketchObject", "Sketch008")
sketch9.AttachmentSupport = (doc.getObject("XZ_Plane"), [""])
sketch9.MapMode = "FlatFace"
sketch9.AttachmentOffset = App.Placement(Vector(0, 0, -6.35), App.Rotation())
sketch9.addGeometry(Part.Circle(Vector(0, 0, 0), Vector(0, 0, 1), 14), False)
sketch9.addConstraint(Sketcher.Constraint("Coincident", 0, 3, -1, 1))
sketch9.addConstraint(Sketcher.Constraint("Diameter", 0, 29.0))
sketch9.setExpression("Constraints[1]", "Params.sketch9_diameter")
pad8 = body.newObject("PartDesign::Pad", "Pad007")
pad8.Profile = sketch9
pad8.setExpression("Length", "Params.pad8_length")
pad8.Reversed = True

sketch10 = body.newObject("Sketcher::SketchObject", "Sketch009")
sketch10.AttachmentSupport = (doc.getObject("XZ_Plane"), [""])
sketch10.MapMode = "FlatFace"
sketch10.AttachmentOffset = App.Placement(Vector(0, 0, -12.35), App.Rotation())
sketch10.addGeometry(Part.Circle(Vector(0, 0, 0), Vector(0, 0, 1), 12), False)
sketch10.addConstraint(Sketcher.Constraint("Coincident", 0, 3, -1, 1))
sketch10.addConstraint(Sketcher.Constraint("Diameter", 0, 24.0))
sketch10.setExpression("Constraints[1]", "Params.sketch10_diameter")
pad9 = body.newObject("PartDesign::Pad", "Pad008")
pad9.Profile = sketch10
pad9.setExpression("Length", "Params.pad9_length")
pad9.Reversed = True
doc.recompute()

chamfer = body.newObject("PartDesign::Chamfer", "Chamfer")
chamfer.Base = (pad9, edges_at(pad9, [
    (44.43, 16.45, 0),
    (33.73, 16.45, 11.95),
    (23.03, 16.45, 0),
    (33.73, 16.45, -11.95),
]))
chamfer.setExpression("Size", "Params.chamfer_size")
doc.recompute()

chamfer2 = body.newObject("PartDesign::Chamfer", "Chamfer001")
chamfer2.Base = (chamfer, edges_at(chamfer, [
    (-33.4, 16.45, -11.95),
    (-44.1, 16.45, 0),
    (-33.4, 16.45, 11.95),
    (-22.7, 16.45, 0),
]))
chamfer2.setExpression("Size", "Params.chamfer2_size")
doc.recompute()

chamfer3 = body.newObject("PartDesign::Chamfer", "Chamfer002")
chamfer3.Base = (chamfer2, edges_at(chamfer2, [
    (-33.4, 10.95, 15.75),
    (-49.65, 10.95, 0),
    (-33.4, 10.95, -15.75),
    (-17.15, 10.95, 0),
]))
chamfer3.setExpression("Size", "Params.chamfer3_size")
doc.recompute()

chamfer4 = body.newObject("PartDesign::Chamfer", "Chamfer003")
chamfer4.Base = (chamfer3, edges_at(chamfer3, [
    (33.73, 9.15, -14.8),
    (18.73, 9.15, 0),
    (33.73, 9.15, 14.8),
    (48.73, 9.15, 0),
]))
chamfer4.setExpression("Size", "Params.chamfer4_size")

sketch11 = body.newObject("Sketcher::SketchObject", "Sketch010")
sketch11.AttachmentSupport = (doc.getObject("XZ_Plane"), [""])
sketch11.MapMode = "FlatFace"
sketch11.AttachmentOffset = App.Placement(Vector(0, 0, -16.45), App.Rotation())
sketch11.addGeometry(Part.Circle(Vector(38.7, 5, 0), Vector(0, 0, 1), 1.7), False)
sketch11.addGeometry(Part.Circle(Vector(28.7, 5, 0), Vector(0, 0, 1), 1.7), False)
sketch11.addGeometry(Part.Circle(Vector(28.7, -5, 0), Vector(0, 0, 1), 1.7), False)
sketch11.addGeometry(Part.Circle(Vector(38.7, -5, 0), Vector(0, 0, 1), 1.7), False)
sketch11.addConstraint(Sketcher.Constraint("Equal", 0, 1))
sketch11.addConstraint(Sketcher.Constraint("Equal", 1, 2))
sketch11.addConstraint(Sketcher.Constraint("Equal", 2, 3))
sketch11.addConstraint(Sketcher.Constraint("Symmetric", 1, 3, 2, 3, -1))
sketch11.addConstraint(Sketcher.Constraint("Symmetric", 0, 3, 3, 3, -1))
sketch11.addConstraint(Sketcher.Constraint("Horizontal", 0, 3, 1, 3))
sketch11.addConstraint(Sketcher.Constraint("Diameter", 0, 3.459))
sketch11.addConstraint(Sketcher.Constraint("DistanceY", -1, 1, 0, 3, 5.0))
sketch11.addConstraint(Sketcher.Constraint("DistanceX", 1, 3, 0, 3, 10.0))
sketch11.addConstraint(Sketcher.Constraint("DistanceX", -1, 1, 0, 3, 38.73))
doc.recompute()
hole = body.newObject("PartDesign::Hole", "Hole")
hole.Profile = sketch11
hole.ThreadType = "None"
hole.setExpression("Diameter", "Params.hole_diameter")
hole.DepthType = "Dimension"
hole.setExpression("Depth", "Params.hole_depth")
hole.DrillPoint = "Angled"
hole.DrillPointAngle = 118
hole.Reversed = True

sketch12 = body.newObject("Sketcher::SketchObject", "Sketch011")
sketch12.AttachmentSupport = (doc.getObject("XZ_Plane"), [""])
sketch12.MapMode = "FlatFace"
sketch12.AttachmentOffset = App.Placement(Vector(0, 0, -16.45), App.Rotation())
sketch12.addGeometry(Part.Circle(Vector(-38.4, -5, 0), Vector(0, 0, 1), 1.7), False)
sketch12.addGeometry(Part.Circle(Vector(-28.4, -5, 0), Vector(0, 0, 1), 1.7), False)
sketch12.addGeometry(Part.Circle(Vector(-28.4, 5, 0), Vector(0, 0, 1), 1.7), False)
sketch12.addGeometry(Part.Circle(Vector(-38.4, 5, 0), Vector(0, 0, 1), 1.7), False)
sketch12.addConstraint(Sketcher.Constraint("Equal", 0, 1))
sketch12.addConstraint(Sketcher.Constraint("Equal", 1, 2))
sketch12.addConstraint(Sketcher.Constraint("Equal", 2, 3))
sketch12.addConstraint(Sketcher.Constraint("Symmetric", 1, 3, 2, 3, -1))
sketch12.addConstraint(Sketcher.Constraint("Symmetric", 0, 3, 3, 3, -1))
sketch12.addConstraint(Sketcher.Constraint("Horizontal", 0, 3, 1, 3))
sketch12.addConstraint(Sketcher.Constraint("Diameter", 0, 3.459))
sketch12.addConstraint(Sketcher.Constraint("DistanceY", 0, 3, -1, 1, 5.0))
sketch12.addConstraint(Sketcher.Constraint("DistanceX", 0, 3, 1, 3, 10.0))
sketch12.addConstraint(Sketcher.Constraint("DistanceX", 0, 3, -1, 1, 38.4))
doc.recompute()
hole2 = body.newObject("PartDesign::Hole", "Hole001")
hole2.Profile = sketch12
hole2.ThreadType = "None"
hole2.setExpression("Diameter", "Params.hole2_diameter")
hole2.DepthType = "Dimension"
hole2.setExpression("Depth", "Params.hole2_depth")
hole2.DrillPoint = "Angled"
hole2.DrillPointAngle = 118
hole2.Reversed = True
doc.recompute()

chamfer5 = body.newObject("PartDesign::Chamfer", "Chamfer004")
chamfer5.Base = (hole2, edges_at(hole2, [(-12, 14.35, 0), (-14.5, 12.35, 0)]))
chamfer5.setExpression("Size", "Params.chamfer5_size")

doc.recompute()
